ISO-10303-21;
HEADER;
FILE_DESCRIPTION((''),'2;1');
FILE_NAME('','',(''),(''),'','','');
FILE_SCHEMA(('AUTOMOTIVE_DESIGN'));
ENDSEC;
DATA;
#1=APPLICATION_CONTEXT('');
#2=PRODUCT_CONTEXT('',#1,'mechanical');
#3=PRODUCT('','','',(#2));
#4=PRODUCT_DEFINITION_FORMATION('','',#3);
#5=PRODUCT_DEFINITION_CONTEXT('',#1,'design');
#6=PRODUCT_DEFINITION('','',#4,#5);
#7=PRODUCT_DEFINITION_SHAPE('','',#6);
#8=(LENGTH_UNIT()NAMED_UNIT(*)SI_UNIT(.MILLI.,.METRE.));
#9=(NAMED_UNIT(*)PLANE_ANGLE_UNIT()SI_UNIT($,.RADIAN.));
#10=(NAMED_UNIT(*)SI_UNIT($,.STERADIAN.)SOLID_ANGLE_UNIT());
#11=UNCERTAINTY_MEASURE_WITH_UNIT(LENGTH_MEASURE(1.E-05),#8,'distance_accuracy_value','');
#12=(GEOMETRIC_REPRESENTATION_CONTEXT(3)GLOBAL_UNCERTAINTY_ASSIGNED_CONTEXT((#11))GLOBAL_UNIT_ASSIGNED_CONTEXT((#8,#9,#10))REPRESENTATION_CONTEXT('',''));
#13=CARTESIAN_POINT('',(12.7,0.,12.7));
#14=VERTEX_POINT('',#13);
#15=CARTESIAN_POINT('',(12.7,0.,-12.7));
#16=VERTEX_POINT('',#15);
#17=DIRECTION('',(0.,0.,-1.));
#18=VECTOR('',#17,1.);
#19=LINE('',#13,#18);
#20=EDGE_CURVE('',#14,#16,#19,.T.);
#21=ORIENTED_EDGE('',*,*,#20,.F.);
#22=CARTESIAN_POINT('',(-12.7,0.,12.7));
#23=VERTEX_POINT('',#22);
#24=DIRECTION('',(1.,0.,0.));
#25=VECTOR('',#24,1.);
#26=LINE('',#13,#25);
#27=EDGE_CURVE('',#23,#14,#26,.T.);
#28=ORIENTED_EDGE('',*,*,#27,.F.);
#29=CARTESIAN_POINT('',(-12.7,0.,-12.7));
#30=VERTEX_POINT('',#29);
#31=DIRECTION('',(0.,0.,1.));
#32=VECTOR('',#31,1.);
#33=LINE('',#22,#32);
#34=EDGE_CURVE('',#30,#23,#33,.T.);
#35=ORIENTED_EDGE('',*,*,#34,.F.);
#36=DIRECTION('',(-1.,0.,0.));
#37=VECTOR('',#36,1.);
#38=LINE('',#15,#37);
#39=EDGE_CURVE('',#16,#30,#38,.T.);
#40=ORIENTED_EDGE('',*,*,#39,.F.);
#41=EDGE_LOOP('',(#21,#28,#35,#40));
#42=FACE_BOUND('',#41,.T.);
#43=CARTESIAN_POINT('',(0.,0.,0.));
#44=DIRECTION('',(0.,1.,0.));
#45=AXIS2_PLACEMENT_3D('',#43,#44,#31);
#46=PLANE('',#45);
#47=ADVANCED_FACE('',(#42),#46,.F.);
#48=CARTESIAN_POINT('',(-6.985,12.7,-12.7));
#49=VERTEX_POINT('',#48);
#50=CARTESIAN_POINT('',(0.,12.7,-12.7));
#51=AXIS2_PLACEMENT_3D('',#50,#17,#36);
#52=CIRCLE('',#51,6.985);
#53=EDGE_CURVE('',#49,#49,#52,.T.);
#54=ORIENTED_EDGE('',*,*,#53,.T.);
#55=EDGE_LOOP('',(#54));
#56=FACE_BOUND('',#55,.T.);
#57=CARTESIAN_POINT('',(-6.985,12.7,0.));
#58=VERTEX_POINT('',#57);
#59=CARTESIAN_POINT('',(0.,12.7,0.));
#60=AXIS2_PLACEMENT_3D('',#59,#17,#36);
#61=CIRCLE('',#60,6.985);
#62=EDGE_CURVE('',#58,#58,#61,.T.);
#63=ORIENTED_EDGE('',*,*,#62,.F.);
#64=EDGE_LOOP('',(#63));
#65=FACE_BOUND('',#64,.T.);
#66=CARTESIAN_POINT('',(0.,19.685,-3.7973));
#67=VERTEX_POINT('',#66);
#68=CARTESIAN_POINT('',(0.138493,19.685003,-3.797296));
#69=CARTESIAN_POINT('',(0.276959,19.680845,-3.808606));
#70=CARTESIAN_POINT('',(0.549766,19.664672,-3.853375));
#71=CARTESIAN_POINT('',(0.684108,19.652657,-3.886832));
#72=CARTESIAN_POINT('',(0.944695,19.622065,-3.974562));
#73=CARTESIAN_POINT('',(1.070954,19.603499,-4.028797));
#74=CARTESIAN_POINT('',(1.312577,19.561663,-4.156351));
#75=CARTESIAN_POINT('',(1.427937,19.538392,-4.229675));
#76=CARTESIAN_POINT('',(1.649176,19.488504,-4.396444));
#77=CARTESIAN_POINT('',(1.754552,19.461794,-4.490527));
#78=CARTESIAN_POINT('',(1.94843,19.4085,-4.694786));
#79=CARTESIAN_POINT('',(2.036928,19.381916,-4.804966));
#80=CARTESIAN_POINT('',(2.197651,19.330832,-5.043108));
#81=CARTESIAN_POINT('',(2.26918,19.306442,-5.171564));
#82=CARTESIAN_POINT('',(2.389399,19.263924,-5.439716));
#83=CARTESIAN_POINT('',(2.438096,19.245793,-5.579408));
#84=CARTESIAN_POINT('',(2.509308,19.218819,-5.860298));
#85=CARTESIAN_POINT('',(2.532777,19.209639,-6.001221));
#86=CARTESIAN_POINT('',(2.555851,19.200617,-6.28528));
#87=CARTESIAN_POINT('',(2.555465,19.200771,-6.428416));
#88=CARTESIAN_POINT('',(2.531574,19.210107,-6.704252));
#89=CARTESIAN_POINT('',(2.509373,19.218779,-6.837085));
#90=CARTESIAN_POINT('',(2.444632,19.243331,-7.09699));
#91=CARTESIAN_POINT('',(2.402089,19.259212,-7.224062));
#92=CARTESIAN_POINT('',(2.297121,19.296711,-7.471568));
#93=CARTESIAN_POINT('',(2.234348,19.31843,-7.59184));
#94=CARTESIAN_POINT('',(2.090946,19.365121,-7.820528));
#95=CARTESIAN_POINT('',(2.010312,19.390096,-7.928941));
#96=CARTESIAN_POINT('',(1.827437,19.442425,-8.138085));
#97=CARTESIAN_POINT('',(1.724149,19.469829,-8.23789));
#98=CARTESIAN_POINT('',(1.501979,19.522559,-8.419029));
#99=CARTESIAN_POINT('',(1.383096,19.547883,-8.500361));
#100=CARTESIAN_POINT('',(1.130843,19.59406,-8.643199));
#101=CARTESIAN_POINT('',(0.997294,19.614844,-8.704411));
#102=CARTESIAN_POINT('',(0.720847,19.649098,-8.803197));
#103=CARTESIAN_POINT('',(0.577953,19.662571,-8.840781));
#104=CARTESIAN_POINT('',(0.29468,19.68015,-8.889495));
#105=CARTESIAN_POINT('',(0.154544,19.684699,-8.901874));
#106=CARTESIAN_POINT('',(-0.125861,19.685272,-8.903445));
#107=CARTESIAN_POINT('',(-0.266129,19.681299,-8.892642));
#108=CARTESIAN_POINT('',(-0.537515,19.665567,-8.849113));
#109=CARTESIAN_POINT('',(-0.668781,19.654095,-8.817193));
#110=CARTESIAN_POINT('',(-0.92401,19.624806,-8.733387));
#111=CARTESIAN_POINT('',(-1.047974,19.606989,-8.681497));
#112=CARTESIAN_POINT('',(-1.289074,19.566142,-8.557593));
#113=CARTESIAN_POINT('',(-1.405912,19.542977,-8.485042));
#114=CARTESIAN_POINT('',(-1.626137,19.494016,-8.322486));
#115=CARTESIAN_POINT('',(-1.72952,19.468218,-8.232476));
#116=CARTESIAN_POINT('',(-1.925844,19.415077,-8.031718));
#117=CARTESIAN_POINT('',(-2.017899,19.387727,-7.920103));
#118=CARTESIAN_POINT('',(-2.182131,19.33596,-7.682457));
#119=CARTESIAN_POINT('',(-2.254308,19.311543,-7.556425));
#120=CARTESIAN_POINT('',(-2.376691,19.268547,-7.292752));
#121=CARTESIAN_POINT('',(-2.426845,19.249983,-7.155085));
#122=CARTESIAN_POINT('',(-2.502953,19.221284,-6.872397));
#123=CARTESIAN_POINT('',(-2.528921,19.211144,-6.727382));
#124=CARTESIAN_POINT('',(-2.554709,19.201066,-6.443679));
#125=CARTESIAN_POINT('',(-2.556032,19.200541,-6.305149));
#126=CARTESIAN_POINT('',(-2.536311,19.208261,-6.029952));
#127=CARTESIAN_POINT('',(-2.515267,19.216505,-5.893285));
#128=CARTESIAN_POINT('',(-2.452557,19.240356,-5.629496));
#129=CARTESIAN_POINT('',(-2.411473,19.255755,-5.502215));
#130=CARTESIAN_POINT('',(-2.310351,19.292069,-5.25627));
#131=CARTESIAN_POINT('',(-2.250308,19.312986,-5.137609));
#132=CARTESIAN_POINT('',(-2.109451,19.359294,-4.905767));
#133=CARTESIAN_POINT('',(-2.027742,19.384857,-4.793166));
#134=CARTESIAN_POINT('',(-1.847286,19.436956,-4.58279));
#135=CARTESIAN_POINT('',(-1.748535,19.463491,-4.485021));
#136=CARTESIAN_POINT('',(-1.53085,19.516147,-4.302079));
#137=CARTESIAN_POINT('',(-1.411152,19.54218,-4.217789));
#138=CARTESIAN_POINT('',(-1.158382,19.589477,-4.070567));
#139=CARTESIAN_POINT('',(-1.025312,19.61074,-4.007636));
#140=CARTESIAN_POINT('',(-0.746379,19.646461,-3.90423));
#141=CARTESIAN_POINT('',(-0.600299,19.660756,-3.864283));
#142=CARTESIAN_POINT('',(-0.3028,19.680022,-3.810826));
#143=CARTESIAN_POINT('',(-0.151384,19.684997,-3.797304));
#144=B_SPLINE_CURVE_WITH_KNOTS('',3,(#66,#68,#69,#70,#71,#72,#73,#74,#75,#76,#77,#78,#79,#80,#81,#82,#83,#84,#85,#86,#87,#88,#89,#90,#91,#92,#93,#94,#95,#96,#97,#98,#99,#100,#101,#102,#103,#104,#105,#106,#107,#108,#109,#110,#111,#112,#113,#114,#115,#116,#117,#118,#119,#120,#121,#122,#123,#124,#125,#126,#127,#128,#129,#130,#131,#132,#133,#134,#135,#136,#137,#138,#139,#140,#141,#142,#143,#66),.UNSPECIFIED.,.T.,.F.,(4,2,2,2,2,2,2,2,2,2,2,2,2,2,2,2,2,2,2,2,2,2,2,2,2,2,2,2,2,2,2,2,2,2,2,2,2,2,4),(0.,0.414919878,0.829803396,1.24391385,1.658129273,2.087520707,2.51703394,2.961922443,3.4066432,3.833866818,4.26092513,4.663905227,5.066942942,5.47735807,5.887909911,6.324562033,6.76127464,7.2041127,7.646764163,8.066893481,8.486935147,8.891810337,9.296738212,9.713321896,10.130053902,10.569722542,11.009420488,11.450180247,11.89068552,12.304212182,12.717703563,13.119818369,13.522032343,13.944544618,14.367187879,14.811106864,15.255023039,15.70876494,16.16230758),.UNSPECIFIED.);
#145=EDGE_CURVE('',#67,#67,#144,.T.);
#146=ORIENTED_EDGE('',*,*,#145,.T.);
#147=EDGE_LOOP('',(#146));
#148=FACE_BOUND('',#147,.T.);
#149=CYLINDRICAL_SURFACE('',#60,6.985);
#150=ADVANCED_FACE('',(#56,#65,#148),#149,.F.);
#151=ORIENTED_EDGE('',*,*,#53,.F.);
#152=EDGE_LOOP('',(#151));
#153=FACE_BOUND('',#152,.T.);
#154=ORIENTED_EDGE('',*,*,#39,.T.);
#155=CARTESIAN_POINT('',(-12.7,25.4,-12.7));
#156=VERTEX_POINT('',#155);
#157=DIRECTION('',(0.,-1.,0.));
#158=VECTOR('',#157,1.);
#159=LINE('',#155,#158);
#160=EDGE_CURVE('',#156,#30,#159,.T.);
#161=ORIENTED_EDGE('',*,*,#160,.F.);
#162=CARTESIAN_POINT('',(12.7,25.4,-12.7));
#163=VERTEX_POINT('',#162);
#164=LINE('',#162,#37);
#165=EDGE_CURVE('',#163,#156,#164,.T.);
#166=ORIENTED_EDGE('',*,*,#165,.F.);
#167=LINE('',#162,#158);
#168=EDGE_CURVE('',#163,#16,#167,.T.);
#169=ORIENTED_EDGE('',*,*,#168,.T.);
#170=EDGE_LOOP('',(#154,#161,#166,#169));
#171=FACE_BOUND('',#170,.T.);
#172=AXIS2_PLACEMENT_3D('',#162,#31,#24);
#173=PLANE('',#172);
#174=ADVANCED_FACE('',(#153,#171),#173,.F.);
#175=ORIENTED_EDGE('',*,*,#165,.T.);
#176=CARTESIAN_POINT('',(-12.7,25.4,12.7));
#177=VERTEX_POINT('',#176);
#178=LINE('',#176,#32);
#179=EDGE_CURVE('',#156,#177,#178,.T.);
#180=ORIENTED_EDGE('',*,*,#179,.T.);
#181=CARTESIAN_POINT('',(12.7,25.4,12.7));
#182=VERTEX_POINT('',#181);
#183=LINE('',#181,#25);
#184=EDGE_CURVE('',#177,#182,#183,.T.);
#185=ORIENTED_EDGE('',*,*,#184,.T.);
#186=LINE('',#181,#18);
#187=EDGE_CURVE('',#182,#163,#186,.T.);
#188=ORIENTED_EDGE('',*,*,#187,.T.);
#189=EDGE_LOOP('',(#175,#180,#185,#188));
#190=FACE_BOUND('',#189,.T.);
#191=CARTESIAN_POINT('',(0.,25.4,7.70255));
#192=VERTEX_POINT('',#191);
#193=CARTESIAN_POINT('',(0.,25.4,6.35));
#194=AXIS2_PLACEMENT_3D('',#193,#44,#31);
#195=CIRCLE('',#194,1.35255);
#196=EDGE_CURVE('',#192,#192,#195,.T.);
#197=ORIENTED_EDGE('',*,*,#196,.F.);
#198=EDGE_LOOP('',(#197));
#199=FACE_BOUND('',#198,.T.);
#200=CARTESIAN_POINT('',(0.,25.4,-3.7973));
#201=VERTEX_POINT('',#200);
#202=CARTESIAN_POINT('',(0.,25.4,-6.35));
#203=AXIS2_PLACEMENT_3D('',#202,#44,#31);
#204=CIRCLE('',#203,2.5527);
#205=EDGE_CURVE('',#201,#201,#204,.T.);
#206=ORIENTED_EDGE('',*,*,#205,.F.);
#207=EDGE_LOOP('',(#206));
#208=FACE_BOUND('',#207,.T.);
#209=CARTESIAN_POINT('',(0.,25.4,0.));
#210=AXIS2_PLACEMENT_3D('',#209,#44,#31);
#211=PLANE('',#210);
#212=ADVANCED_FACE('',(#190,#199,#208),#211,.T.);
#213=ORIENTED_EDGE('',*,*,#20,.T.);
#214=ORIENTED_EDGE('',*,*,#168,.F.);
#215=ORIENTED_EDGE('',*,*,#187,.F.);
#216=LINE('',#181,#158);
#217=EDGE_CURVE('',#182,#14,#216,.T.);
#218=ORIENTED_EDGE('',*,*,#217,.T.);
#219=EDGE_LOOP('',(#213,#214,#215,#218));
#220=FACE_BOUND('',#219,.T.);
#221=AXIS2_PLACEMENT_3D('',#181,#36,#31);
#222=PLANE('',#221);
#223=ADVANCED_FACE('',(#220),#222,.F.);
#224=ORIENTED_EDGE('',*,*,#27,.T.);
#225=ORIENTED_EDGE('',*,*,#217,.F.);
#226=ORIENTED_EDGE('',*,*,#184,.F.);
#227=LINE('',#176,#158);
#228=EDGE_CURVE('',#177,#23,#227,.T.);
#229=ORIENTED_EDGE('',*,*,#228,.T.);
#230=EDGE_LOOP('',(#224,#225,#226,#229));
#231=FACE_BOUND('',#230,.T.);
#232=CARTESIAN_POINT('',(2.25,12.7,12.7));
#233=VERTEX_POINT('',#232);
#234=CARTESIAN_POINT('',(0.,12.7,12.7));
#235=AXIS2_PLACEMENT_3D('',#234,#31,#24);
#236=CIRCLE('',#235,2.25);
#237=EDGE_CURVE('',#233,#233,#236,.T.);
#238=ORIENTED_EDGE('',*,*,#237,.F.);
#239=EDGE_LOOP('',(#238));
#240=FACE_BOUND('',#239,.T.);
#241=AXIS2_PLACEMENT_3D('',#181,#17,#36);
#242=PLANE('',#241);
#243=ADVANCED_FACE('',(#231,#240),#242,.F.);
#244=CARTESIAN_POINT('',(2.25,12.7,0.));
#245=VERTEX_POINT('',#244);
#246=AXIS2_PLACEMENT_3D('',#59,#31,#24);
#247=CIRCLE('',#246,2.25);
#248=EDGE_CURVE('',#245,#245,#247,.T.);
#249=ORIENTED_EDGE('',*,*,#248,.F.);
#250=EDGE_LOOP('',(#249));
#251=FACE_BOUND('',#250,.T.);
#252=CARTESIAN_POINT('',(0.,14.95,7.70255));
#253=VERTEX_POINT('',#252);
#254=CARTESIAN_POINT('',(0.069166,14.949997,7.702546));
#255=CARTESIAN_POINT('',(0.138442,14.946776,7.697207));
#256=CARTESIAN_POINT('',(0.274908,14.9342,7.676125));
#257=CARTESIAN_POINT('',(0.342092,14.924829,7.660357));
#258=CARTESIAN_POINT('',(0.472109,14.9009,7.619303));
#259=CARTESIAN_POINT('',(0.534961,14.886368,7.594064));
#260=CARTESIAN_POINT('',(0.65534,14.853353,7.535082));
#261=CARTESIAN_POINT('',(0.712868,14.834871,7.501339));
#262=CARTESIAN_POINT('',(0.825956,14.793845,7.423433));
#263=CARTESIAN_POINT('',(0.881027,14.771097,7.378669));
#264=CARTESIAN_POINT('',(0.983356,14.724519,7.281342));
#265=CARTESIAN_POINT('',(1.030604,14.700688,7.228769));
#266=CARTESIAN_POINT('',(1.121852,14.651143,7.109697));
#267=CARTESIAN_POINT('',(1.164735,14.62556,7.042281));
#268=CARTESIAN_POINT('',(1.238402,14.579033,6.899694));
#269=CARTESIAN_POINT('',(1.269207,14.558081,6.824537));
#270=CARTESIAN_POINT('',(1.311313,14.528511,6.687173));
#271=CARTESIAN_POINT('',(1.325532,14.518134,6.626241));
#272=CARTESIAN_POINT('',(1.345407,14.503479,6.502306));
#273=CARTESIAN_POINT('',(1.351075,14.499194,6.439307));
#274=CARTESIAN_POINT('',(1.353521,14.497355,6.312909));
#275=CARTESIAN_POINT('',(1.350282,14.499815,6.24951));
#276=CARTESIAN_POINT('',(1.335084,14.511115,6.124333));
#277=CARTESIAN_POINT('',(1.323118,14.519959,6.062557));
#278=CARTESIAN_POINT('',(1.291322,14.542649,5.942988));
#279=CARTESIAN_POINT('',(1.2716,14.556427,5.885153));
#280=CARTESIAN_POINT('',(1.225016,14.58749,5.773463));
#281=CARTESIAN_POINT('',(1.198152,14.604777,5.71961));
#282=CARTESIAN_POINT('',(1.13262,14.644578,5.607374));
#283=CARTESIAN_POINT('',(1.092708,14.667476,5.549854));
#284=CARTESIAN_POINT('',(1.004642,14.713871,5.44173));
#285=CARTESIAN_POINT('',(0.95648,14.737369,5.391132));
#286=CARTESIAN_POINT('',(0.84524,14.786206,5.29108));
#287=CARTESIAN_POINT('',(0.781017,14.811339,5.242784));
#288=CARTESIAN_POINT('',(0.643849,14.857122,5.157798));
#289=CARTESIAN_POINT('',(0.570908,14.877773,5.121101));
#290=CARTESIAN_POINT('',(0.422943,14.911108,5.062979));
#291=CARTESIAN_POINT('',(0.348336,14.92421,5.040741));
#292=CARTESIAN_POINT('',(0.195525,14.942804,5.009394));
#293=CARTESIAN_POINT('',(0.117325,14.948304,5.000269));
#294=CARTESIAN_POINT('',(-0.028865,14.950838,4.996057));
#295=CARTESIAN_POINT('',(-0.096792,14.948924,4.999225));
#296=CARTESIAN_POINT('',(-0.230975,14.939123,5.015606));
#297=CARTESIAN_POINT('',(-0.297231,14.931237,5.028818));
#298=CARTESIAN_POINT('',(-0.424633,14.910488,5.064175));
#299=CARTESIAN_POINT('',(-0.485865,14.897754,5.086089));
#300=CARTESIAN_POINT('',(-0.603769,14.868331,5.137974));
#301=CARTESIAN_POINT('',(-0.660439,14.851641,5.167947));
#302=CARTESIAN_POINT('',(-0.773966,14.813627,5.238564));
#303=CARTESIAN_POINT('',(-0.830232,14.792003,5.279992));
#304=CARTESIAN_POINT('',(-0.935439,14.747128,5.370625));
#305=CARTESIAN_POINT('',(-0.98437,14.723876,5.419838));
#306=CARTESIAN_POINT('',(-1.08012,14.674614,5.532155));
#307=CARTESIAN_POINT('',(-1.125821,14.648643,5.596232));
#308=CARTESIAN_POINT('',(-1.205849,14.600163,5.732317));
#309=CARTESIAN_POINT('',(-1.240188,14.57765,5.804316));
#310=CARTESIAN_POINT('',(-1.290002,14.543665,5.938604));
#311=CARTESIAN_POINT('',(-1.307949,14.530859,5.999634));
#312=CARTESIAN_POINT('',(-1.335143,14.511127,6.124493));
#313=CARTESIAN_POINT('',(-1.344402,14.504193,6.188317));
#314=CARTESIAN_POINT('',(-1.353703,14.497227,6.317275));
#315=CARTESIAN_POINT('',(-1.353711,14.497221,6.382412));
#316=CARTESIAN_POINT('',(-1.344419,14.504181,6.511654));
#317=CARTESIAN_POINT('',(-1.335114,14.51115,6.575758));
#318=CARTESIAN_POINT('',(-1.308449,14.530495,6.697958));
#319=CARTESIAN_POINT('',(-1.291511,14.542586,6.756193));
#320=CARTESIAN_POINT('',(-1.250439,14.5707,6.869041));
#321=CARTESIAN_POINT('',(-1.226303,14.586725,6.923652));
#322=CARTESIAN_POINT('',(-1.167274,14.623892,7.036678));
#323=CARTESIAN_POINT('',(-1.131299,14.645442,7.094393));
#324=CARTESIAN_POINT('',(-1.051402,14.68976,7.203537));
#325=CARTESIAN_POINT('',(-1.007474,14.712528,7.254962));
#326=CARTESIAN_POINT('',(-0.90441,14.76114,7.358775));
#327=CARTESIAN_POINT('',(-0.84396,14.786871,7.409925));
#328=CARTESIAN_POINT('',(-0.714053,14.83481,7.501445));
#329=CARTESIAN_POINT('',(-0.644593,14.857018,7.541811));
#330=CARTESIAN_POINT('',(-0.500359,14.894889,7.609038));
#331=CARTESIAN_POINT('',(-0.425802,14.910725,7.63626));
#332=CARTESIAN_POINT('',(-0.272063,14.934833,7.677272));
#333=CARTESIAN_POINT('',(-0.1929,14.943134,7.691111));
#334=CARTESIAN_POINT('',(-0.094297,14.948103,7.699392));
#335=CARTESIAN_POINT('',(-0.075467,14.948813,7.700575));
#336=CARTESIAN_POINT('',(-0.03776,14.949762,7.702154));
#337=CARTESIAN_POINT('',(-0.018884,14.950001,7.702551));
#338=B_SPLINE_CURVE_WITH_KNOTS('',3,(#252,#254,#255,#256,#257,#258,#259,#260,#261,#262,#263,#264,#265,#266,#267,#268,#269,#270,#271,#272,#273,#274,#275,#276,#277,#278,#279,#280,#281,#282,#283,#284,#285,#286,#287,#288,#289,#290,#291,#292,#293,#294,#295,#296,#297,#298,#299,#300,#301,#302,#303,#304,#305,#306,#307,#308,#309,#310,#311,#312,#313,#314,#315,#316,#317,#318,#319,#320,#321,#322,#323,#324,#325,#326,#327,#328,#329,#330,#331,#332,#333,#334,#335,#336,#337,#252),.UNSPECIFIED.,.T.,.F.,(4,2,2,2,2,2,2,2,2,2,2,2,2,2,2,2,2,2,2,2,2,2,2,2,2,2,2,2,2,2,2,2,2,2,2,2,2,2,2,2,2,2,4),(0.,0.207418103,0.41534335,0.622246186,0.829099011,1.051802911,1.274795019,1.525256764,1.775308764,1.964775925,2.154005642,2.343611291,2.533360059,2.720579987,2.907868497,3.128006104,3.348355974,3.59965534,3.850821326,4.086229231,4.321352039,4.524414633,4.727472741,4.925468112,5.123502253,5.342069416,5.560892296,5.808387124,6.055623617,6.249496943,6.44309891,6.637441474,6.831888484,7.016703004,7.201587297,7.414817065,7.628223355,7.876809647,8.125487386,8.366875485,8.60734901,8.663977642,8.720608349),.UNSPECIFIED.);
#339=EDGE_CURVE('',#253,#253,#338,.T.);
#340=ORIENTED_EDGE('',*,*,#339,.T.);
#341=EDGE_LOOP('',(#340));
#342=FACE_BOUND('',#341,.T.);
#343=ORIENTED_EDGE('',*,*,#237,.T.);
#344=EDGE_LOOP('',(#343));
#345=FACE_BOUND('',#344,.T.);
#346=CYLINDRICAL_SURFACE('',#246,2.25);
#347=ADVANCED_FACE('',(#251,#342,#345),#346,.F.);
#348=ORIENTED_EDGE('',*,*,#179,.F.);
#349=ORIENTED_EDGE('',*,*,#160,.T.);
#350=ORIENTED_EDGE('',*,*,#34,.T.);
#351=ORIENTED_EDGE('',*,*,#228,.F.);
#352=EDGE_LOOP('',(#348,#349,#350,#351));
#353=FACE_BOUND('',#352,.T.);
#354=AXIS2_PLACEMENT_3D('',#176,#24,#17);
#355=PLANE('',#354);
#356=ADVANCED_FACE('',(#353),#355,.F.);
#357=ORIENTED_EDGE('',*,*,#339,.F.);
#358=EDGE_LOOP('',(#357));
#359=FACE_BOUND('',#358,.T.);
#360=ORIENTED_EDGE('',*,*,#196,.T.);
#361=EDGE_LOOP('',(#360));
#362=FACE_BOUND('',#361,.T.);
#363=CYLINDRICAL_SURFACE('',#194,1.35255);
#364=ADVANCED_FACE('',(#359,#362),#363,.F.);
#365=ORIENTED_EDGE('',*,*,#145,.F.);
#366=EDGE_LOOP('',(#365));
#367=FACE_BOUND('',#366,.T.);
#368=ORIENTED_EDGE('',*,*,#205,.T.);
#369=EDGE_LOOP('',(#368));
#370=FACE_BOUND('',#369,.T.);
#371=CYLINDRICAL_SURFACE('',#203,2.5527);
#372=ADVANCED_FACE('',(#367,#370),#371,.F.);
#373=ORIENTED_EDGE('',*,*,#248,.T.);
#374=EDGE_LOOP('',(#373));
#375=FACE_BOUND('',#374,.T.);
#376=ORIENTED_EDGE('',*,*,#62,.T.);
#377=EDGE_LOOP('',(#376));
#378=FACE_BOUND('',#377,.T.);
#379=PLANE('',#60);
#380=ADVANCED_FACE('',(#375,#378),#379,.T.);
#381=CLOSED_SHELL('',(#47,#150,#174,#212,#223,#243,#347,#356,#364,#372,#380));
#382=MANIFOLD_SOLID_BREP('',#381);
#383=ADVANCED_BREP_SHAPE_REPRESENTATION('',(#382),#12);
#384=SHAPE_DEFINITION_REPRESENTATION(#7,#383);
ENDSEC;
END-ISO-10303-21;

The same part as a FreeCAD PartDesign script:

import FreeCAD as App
import Part
import Sketcher
from FreeCAD import Vector
Q = App.Units.Quantity


def add_polygon(sketch, points):
    """Adds a closed chain of lines whose ends are joined by coincident constraints."""
    first, n = sketch.GeometryCount, len(points)
    for a, b in zip(points, points[1:] + points[:1]):
        sketch.addGeometry(Part.LineSegment(App.Vector(*a, 0), App.Vector(*b, 0)), False)
    for i in range(n):
        sketch.addConstraint(Sketcher.Constraint("Coincident", first + i, 2, first + (i + 1) % n, 1))

doc = App.newDocument("Part")
params = doc.addObject("Spreadsheet::Sheet", "Params")
for row, (alias, value) in enumerate([
    ("sketch1_width", "1 in"),
    ("pad1_length", "1 in"),
    ("pocket1_length", "0.5 in"),
    ("sketch3_diameter", "0.55 in"),
    ("pocket2_length", "0.5 in"),
    ("sketch5_diameter", "0.201 in"),
], start=1):
    params.set(f"A{row}", alias)
    params.set(f"B{row}", "=" + value)
    params.setAlias(f"B{row}", alias)

body = doc.addObject("PartDesign::Body", "Body")

sketch1 = body.newObject("Sketcher::SketchObject", "Sketch")
sketch1.AttachmentSupport = (doc.getObject("XZ_Plane"), [""])
sketch1.MapMode = "FlatFace"
add_polygon(sketch1, [(-13, -13), (-13, 13), (13, 13), (13, -13)])
sketch1.addConstraint([
    Sketcher.Constraint("Vertical", 0),
    Sketcher.Constraint("Horizontal", 1),
    Sketcher.Constraint("Vertical", 2),
    Sketcher.Constraint("Horizontal", 3),
    Sketcher.Constraint("Symmetric", 0, 2, 2, 2, -1, 1),
    Sketcher.Constraint("Equal", 3, 0),
    Sketcher.Constraint("DistanceX", 1, 1, 1, 2, Q("1 in")),
])
sketch1.setExpression("Constraints[10]", "Params.sketch1_width")
pad1 = body.newObject("PartDesign::Pad", "Pad")
pad1.Profile = sketch1
pad1.setExpression("Length", "Params.pad1_length")
pad1.Reversed = True

sketch2 = body.newObject("Sketcher::SketchObject", "Sketch001")
sketch2.AttachmentSupport = (doc.getObject("XY_Plane"), [""])
sketch2.MapMode = "FlatFace"
sketch2.AttachmentOffset = App.Placement(Vector(0, 0, 0.5 * 25.4), App.Rotation())
sketch2.addGeometry(Part.Circle(Vector(0, 12.7, 0), Vector(0, 0, 1), 2.2), False)
sketch2.addConstraint([
    Sketcher.Constraint("PointOnObject", 0, 3, -2),
    Sketcher.Constraint("DistanceY", -1, 1, 0, 3, Q("0.5 in")),
    Sketcher.Constraint("Diameter", 0, Q("4.5 mm")),
])
pocket1 = body.newObject("PartDesign::Pocket", "Pocket")
pocket1.Profile = sketch2
pocket1.setExpression("Length", "Params.pocket1_length")

sketch3 = body.newObject("Sketcher::SketchObject", "Sketch002")
sketch3.AttachmentSupport = (doc.getObject("XY_Plane"), [""])
sketch3.MapMode = "FlatFace"
sketch3.AttachmentOffset = App.Placement(Vector(0, 0, -0.5 * 25.4), App.Rotation())
sketch3.addGeometry(Part.Circle(Vector(0, 13, 0), Vector(0, 0, 1), 7), False)
sketch3.addConstraint([
    Sketcher.Constraint("PointOnObject", 0, 3, -2),
    Sketcher.Constraint("Diameter", 0, Q("0.55 in")),
    Sketcher.Constraint("DistanceY", -1, 1, 0, 3, Q("0.5 in")),
])
sketch3.setExpression("Constraints[1]", "Params.sketch3_diameter")
pocket2 = body.newObject("PartDesign::Pocket", "Pocket001")
pocket2.Profile = sketch3
pocket2.setExpression("Length", "Params.pocket2_length")
pocket2.Reversed = True

sketch4 = body.newObject("Sketcher::SketchObject", "Sketch003")
sketch4.AttachmentSupport = (doc.getObject("XZ_Plane"), [""])
sketch4.MapMode = "FlatFace"
sketch4.AttachmentOffset = App.Placement(Vector(0, 0, -1 * 25.4), App.Rotation())
sketch4.addGeometry(Part.Circle(Vector(0, 6.3, 0), Vector(0, 0, 1), 1.4), False)
sketch4.addConstraint([
    Sketcher.Constraint("PointOnObject", 0, 3, -2),
    Sketcher.Constraint("Diameter", 0, Q("0.1065 in")),
    Sketcher.Constraint("DistanceY", -1, 1, 0, 3, Q("0.25 in")),
])
pocket3 = body.newObject("PartDesign::Pocket", "Pocket002")
pocket3.Profile = sketch4
pocket3.Type = "UpToFirst"
pocket3.Reversed = True

sketch5 = body.newObject("Sketcher::SketchObject", "Sketch004")
sketch5.AttachmentSupport = (doc.getObject("XZ_Plane"), [""])
sketch5.MapMode = "FlatFace"
sketch5.AttachmentOffset = App.Placement(Vector(0, 0, -1 * 25.4), App.Rotation())
sketch5.addGeometry(Part.Circle(Vector(0, -6.3, 0), Vector(0, 0, 1), 2.6), False)
sketch5.addConstraint([
    Sketcher.Constraint("PointOnObject", 0, 3, -2),
    Sketcher.Constraint("Diameter", 0, Q("0.201 in")),
    Sketcher.Constraint("DistanceY", 0, 3, -1, 1, Q("0.25 in")),
])
sketch5.setExpression("Constraints[1]", "Params.sketch5_diameter")
pocket4 = body.newObject("PartDesign::Pocket", "Pocket003")
pocket4.Profile = sketch5
pocket4.Type = "UpToFirst"
pocket4.Reversed = True

doc.recompute()
